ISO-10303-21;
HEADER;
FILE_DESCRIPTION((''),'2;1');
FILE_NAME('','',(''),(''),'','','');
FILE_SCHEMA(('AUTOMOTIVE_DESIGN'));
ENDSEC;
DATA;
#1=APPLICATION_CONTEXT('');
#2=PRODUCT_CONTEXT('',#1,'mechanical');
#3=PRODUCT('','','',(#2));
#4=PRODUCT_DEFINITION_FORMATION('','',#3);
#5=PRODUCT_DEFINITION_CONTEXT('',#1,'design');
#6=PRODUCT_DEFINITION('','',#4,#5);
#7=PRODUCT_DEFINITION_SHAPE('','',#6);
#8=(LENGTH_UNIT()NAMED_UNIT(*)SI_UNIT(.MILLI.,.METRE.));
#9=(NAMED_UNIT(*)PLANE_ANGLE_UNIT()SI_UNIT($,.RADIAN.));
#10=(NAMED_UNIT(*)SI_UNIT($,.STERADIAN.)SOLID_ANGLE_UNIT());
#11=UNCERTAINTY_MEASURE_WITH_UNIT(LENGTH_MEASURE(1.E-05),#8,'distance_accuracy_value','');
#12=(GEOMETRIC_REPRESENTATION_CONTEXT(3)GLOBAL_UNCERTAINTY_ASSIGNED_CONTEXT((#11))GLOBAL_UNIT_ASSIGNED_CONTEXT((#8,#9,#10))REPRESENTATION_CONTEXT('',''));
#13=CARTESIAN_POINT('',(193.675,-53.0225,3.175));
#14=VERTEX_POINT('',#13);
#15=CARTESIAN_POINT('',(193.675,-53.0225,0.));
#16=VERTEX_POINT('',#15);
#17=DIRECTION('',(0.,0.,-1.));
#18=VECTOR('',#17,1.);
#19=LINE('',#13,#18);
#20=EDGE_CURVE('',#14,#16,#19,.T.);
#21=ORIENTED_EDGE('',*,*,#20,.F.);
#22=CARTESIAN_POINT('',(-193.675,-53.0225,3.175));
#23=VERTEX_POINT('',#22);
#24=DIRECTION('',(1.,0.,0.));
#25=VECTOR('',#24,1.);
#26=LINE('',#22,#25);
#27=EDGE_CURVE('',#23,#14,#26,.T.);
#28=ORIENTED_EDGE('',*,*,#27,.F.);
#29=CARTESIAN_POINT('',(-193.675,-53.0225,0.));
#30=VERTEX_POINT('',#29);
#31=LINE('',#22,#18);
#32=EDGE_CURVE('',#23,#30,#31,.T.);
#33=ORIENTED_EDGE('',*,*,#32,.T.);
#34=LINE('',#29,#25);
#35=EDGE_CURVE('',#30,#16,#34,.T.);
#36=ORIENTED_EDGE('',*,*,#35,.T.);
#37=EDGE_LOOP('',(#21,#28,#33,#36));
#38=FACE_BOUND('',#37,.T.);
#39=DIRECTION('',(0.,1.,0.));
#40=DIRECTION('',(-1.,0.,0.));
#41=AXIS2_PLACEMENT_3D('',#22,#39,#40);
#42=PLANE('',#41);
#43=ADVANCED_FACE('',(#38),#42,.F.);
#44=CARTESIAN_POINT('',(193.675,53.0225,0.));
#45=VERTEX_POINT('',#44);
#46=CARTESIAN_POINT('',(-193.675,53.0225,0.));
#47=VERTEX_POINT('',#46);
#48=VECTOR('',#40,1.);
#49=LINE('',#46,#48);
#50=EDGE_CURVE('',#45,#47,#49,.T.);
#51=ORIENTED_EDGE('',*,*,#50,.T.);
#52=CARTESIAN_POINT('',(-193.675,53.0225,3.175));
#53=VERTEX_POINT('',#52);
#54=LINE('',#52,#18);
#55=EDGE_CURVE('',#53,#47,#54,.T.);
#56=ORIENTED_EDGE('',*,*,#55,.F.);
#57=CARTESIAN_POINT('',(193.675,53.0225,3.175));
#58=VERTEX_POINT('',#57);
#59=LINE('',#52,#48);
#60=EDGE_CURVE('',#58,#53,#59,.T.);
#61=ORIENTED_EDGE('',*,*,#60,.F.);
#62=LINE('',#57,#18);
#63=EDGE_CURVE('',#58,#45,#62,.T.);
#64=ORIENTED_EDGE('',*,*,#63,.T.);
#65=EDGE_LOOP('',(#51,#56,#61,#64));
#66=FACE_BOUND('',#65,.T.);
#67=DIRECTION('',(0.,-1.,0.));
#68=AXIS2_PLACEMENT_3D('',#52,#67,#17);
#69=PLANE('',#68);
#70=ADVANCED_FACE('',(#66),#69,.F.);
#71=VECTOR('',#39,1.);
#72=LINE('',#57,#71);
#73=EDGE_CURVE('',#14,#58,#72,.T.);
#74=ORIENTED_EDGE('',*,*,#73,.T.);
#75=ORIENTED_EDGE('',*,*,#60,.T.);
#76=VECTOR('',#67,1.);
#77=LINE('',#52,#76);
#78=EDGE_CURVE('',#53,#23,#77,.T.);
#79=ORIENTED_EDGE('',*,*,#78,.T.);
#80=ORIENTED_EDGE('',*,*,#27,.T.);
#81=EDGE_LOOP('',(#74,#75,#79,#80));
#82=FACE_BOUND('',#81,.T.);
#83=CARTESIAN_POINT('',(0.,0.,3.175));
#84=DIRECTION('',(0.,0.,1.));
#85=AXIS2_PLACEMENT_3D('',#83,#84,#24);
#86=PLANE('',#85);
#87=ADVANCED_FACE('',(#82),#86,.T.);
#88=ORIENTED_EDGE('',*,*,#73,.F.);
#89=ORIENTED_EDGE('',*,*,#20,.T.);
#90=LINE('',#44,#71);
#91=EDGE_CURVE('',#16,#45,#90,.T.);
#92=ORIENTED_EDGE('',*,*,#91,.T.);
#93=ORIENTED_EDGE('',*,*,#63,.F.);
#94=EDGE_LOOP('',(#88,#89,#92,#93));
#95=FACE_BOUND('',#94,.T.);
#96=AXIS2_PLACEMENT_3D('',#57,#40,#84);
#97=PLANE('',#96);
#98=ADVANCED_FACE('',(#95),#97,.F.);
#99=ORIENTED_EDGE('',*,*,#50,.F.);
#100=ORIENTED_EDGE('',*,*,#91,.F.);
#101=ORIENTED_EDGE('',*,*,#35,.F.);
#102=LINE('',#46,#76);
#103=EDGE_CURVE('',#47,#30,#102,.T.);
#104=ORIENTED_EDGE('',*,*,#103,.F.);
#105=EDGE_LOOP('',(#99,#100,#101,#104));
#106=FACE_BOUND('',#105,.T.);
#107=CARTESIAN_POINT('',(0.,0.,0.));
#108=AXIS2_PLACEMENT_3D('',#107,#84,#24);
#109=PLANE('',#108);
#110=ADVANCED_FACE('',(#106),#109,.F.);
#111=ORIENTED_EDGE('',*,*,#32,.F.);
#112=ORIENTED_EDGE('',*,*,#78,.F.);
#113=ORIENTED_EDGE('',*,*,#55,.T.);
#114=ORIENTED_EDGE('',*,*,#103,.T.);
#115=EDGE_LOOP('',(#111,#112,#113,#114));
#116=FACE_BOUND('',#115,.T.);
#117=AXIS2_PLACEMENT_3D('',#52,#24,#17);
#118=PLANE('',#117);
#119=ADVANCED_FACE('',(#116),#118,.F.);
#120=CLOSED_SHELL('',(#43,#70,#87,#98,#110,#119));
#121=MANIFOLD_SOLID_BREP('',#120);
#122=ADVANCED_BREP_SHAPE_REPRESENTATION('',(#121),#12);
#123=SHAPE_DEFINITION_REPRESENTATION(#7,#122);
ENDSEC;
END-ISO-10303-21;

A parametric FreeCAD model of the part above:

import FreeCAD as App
import Part
import Sketcher

V = App.Vector
Q = App.Units.Quantity


def add_polygon(sketch, points):
    """Adds a closed chain of lines whose ends are joined by coincident constraints."""
    first, n = sketch.GeometryCount, len(points)
    for a, b in zip(points, points[1:] + points[:1]):
        sketch.addGeometry(Part.LineSegment(App.Vector(*a, 0), App.Vector(*b, 0)), False)
    for i in range(n):
        sketch.addConstraint(Sketcher.Constraint("Coincident", first + i, 2, first + (i + 1) % n, 1))

doc = App.newDocument("Part")
params = doc.addObject("Spreadsheet::Sheet", "Params")
for row, (alias, value) in enumerate([
    ("sketch1_width", "15.25 in"),
    ("sketch1_height", "4.175 in"),
    ("pad1_length", "0.125 in"),
], start=1):
    params.set(f"A{row}", alias)
    params.set(f"B{row}", "=" + value)
    params.setAlias(f"B{row}", alias)

body = doc.addObject("PartDesign::Body", "Body")

sketch1 = body.newObject("Sketcher::SketchObject", "Sketch")
sketch1.AttachmentSupport = (doc.getObject("XY_Plane"), [""])
sketch1.MapMode = "FlatFace"
add_polygon(sketch1, [(-194, 53), (-194, -53), (194, -53), (194, 53)])
sketch1.addConstraint(Sketcher.Constraint("Vertical", 0))
sketch1.addConstraint(Sketcher.Constraint("Horizontal", 1))
sketch1.addConstraint(Sketcher.Constraint("Vertical", 2))
sketch1.addConstraint(Sketcher.Constraint("Horizontal", 3))
sketch1.addConstraint(Sketcher.Constraint("Symmetric", 0, 2, 2, 2, -1, 1))
sketch1.addConstraint(Sketcher.Constraint("DistanceX", 1, 1, 1, 2, Q("15.25 in")))
sketch1.addConstraint(Sketcher.Constraint("DistanceY", 0, 2, 0, 1, Q("4.175 in")))
sketch1.setExpression("Constraints[9]", "Params.sketch1_width")
sketch1.setExpression("Constraints[10]", "Params.sketch1_height")
pad1 = body.newObject("PartDesign::Pad", "Pad")
pad1.Profile = sketch1
pad1.setExpression("Length", "Params.pad1_length")

doc.recompute()
